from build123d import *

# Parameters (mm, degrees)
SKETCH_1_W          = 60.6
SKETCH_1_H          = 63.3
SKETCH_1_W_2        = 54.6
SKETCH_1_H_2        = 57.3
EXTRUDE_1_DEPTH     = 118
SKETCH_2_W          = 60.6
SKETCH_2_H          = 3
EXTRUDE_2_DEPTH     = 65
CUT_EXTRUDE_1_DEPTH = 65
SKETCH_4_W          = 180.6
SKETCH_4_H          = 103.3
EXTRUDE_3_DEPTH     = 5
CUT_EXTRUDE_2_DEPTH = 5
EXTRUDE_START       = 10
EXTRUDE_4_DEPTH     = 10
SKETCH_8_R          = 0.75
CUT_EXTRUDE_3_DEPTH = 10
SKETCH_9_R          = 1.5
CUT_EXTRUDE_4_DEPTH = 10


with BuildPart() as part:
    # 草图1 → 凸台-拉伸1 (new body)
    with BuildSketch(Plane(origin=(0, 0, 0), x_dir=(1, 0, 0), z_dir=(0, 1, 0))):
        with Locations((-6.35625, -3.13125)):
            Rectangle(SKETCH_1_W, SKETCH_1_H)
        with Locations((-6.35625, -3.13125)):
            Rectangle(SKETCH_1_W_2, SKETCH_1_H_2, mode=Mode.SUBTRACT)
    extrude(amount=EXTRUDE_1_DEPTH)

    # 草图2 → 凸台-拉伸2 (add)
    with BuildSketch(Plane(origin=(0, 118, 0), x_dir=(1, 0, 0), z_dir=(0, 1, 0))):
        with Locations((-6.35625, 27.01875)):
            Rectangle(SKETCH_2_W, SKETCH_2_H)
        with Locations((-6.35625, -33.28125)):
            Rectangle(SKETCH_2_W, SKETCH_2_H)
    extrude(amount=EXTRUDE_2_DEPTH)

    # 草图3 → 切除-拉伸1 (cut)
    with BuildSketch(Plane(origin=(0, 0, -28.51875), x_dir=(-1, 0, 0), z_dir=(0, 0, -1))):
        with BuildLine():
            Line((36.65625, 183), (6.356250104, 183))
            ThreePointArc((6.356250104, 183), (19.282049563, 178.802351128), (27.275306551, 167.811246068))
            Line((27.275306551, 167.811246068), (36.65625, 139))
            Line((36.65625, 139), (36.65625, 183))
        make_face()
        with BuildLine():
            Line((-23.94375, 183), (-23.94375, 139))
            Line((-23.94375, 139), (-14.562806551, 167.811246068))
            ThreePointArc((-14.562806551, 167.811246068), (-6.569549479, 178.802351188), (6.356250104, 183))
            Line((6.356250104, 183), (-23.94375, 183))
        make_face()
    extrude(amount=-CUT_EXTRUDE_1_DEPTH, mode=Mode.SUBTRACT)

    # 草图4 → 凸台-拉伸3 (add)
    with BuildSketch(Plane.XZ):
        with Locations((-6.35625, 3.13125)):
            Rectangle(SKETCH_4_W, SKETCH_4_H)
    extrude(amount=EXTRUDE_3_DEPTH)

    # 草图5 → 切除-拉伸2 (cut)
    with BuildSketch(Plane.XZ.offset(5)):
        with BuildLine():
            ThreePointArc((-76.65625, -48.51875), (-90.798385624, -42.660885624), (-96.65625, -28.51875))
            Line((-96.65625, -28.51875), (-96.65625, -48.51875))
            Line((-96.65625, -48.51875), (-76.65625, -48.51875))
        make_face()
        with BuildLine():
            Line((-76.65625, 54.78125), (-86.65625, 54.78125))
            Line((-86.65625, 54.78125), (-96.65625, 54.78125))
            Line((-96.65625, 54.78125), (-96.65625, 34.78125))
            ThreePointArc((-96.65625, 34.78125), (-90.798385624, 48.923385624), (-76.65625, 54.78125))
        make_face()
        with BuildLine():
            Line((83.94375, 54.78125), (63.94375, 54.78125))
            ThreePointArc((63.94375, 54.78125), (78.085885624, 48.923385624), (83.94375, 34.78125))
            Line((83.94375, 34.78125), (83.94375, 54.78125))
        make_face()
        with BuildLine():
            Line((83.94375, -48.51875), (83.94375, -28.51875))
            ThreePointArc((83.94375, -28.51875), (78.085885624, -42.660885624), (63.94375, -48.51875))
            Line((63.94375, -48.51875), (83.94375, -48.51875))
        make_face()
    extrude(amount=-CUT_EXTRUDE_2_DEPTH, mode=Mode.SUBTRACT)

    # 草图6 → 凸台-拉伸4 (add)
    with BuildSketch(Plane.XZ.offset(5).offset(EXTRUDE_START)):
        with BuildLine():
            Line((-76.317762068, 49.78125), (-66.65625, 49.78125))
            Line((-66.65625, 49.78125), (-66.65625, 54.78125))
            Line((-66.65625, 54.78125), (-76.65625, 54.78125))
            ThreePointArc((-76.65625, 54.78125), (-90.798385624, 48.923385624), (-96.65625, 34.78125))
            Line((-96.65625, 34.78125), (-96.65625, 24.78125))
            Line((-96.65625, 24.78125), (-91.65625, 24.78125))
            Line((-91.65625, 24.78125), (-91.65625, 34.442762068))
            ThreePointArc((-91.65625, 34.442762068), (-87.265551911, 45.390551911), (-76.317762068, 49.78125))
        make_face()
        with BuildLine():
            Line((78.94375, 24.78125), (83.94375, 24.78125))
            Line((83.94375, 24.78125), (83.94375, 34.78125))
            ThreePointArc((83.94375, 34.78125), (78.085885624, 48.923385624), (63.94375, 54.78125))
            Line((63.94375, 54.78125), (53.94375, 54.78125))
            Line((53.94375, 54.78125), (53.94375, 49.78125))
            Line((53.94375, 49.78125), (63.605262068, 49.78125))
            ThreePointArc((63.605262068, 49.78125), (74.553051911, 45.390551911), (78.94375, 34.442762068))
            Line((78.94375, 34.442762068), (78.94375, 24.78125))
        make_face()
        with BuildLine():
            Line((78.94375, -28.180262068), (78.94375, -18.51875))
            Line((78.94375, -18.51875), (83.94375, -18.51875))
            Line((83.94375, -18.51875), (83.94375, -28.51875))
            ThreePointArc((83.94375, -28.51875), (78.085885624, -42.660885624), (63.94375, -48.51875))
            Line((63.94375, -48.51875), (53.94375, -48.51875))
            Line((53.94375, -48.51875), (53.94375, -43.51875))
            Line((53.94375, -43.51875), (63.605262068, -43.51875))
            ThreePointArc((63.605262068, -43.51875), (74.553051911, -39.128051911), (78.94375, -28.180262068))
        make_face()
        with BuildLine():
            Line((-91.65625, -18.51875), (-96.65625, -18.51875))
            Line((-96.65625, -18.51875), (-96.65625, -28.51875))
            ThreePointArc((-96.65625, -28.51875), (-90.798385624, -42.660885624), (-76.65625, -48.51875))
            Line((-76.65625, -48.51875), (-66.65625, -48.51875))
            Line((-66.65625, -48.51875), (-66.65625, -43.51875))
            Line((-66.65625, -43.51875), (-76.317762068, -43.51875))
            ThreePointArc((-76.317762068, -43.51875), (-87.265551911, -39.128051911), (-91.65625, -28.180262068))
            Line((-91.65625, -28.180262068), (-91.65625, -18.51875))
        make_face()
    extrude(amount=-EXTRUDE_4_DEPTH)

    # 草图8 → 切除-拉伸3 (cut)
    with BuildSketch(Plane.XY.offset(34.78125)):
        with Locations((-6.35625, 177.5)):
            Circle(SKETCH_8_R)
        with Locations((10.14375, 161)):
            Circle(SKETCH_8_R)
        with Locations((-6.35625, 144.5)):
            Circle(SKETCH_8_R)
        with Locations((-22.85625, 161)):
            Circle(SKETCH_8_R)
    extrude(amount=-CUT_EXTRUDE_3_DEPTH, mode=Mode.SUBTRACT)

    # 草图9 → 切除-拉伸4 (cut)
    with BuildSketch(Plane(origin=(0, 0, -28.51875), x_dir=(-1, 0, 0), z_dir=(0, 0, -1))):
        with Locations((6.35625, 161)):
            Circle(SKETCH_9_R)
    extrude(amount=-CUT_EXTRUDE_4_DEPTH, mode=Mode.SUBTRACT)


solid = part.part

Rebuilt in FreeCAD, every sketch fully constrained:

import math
import FreeCAD as App
import Part
import Sketcher
from FreeCAD import Vector
Q = App.Units.Quantity


def add_polygon(sketch, points):
    """Adds a closed chain of lines whose ends are joined by coincident constraints."""
    first, n = sketch.GeometryCount, len(points)
    for a, b in zip(points, points[1:] + points[:1]):
        sketch.addGeometry(Part.LineSegment(App.Vector(*a, 0), App.Vector(*b, 0)), False)
    for i in range(n):
        sketch.addConstraint(Sketcher.Constraint("Coincident", first + i, 2, first + (i + 1) % n, 1))

doc = App.newDocument("Part")
body = doc.addObject("PartDesign::Body", "Body")

# Sketch on XZ plane
sketch1 = body.newObject("Sketcher::SketchObject", "Sketch")
sketch1.AttachmentSupport = (doc.getObject("XZ_Plane"), [""])
sketch1.MapMode = "FlatFace"
add_polygon(sketch1, [(-37, -29), (-37, 35), (24, 35), (24, -29)])  # lines 0-3
add_polygon(sketch1, [(21, 32), (-34, 32), (-34, -26), (21, -26)])  # lines 4-7
sketch1.addConstraint(Sketcher.Constraint("Vertical", 0))
sketch1.addConstraint(Sketcher.Constraint("Horizontal", 1))
sketch1.addConstraint(Sketcher.Constraint("Vertical", 2))
sketch1.addConstraint(Sketcher.Constraint("Horizontal", 3))
sketch1.addConstraint(Sketcher.Constraint("Horizontal", 4))
sketch1.addConstraint(Sketcher.Constraint("Vertical", 5))
sketch1.addConstraint(Sketcher.Constraint("Horizontal", 6))
sketch1.addConstraint(Sketcher.Constraint("Vertical", 7))
sketch1.addConstraint(Sketcher.Constraint("DistanceX", 1, 1, 1, 2, Q("60.6 mm")))
sketch1.addConstraint(Sketcher.Constraint("DistanceX", 4, 2, 4, 1, Q("54.6 mm")))
sketch1.addConstraint(Sketcher.Constraint("DistanceY", 0, 1, 0, 2, Q("63.3 mm")))
sketch1.addConstraint(Sketcher.Constraint("DistanceY", 5, 2, 5, 1, Q("57.3 mm")))
sketch1.addConstraint(Sketcher.Constraint("DistanceX", 0, 2, 4, 2, Q("3 mm")))
sketch1.addConstraint(Sketcher.Constraint("DistanceY", 4, 2, 0, 2, Q("3 mm")))
sketch1.addConstraint(Sketcher.Constraint("DistanceX", 0, 2, -1, 1, Q("36.65625 mm")))
sketch1.addConstraint(Sketcher.Constraint("DistanceY", -1, 1, 0, 2, Q("34.78125 mm")))
pad1 = body.newObject("PartDesign::Pad", "Pad")
pad1.Profile = sketch1
pad1.Length = 118
pad1.Reversed = True

# Sketch on XZ plane
sketch2 = body.newObject("Sketcher::SketchObject", "Sketch001")
sketch2.AttachmentSupport = (doc.getObject("XZ_Plane"), [""])
sketch2.MapMode = "FlatFace"
sketch2.AttachmentOffset = App.Placement(Vector(0, 0, -118), App.Rotation())
add_polygon(sketch2, [(-36.7, -28.5), (-36.7, -25.5), (23.9, -25.5), (23.9, -28.5)])  # lines 0-3
add_polygon(sketch2, [(-36.7, 31.8), (-36.7, 34.8), (23.9, 34.8), (23.9, 31.8)])  # lines 4-7
sketch2.addConstraint(Sketcher.Constraint("Vertical", 0))
sketch2.addConstraint(Sketcher.Constraint("Horizontal", 1))
sketch2.addConstraint(Sketcher.Constraint("Vertical", 2))
sketch2.addConstraint(Sketcher.Constraint("Horizontal", 3))
sketch2.addConstraint(Sketcher.Constraint("Vertical", 4))
sketch2.addConstraint(Sketcher.Constraint("Horizontal", 5))
sketch2.addConstraint(Sketcher.Constraint("Vertical", 6))
sketch2.addConstraint(Sketcher.Constraint("Horizontal", 7))
sketch2.addConstraint(Sketcher.Constraint("Vertical", 3, 2, 4, 2))
sketch2.addConstraint(Sketcher.Constraint("Vertical", 2, 2, 5, 2))
sketch2.addConstraint(Sketcher.Constraint("Equal", 2, 4))
sketch2.addConstraint(Sketcher.Constraint("DistanceY", 0, 1, 0, 2, Q("3 mm")))
sketch2.addConstraint(Sketcher.Constraint("DistanceX", 1, 1, 1, 2, Q("60.6 mm")))
sketch2.addConstraint(Sketcher.Constraint("DistanceY", 0, 2, 4, 2, Q("60.3 mm")))
sketch2.addConstraint(Sketcher.Constraint("DistanceX", 0, 2, -1, 1, Q("36.65625 mm")))
sketch2.addConstraint(Sketcher.Constraint("DistanceY", 0, 2, -1, 1, Q("25.51875 mm")))
pad2 = body.newObject("PartDesign::Pad", "Pad001")
pad2.Profile = sketch2
pad2.Length = 65
pad2.Reversed = True

# Sketch on XY plane
sketch3 = body.newObject("Sketcher::SketchObject", "Sketch002")
sketch3.AttachmentSupport = (doc.getObject("XY_Plane"), [""])
sketch3.MapMode = "FlatFace"
sketch3.AttachmentOffset = App.Placement(Vector(0, 0, -28.51875), App.Rotation())
sketch3.addGeometry(Part.LineSegment(Vector(-37, 183, 0), Vector(-6, 183, 0)), False)
sketch3.addGeometry(Part.ArcOfCircle(Part.Circle(Vector(-6, 161, 0), Vector(0, 0, 1), 22), math.radians(90), math.radians(162)), False)
sketch3.addGeometry(Part.LineSegment(Vector(-27, 168, 0), Vector(-37, 139, 0)), False)
sketch3.addGeometry(Part.LineSegment(Vector(-37, 139, 0), Vector(-37, 183, 0)), False)
sketch3.addGeometry(Part.LineSegment(Vector(24, 183, 0), Vector(24, 139, 0)), False)
sketch3.addGeometry(Part.LineSegment(Vector(24, 139, 0), Vector(15, 168, 0)), False)
sketch3.addGeometry(Part.ArcOfCircle(Part.Circle(Vector(-6, 161, 0), Vector(0, 0, 1), 22), math.radians(18), math.radians(90)), False)
sketch3.addGeometry(Part.LineSegment(Vector(-6, 183, 0), Vector(24, 183, 0)), False)
sketch3.addConstraint(Sketcher.Constraint("Tangent", 0, 2, 1, 1))
sketch3.addConstraint(Sketcher.Constraint("Tangent", 1, 2, 2, 1))
sketch3.addConstraint(Sketcher.Constraint("Coincident", 2, 2, 3, 1))
sketch3.addConstraint(Sketcher.Constraint("Coincident", 3, 2, 0, 1))
sketch3.addConstraint(Sketcher.Constraint("Coincident", 4, 2, 5, 1))
sketch3.addConstraint(Sketcher.Constraint("Tangent", 5, 2, 6, 1))
sketch3.addConstraint(Sketcher.Constraint("Tangent", 6, 2, 7, 1))
sketch3.addConstraint(Sketcher.Constraint("Coincident", 7, 2, 4, 1))
sketch3.addConstraint(Sketcher.Constraint("Horizontal", 0))
sketch3.addConstraint(Sketcher.Constraint("Vertical", 3))
sketch3.addConstraint(Sketcher.Constraint("Vertical", 4))
sketch3.addConstraint(Sketcher.Constraint("Horizontal", 7))
sketch3.addConstraint(Sketcher.Constraint("Coincident", 6, 3, 1, 3))
sketch3.addConstraint(Sketcher.Constraint("Equal", 1, 6))
sketch3.addConstraint(Sketcher.Constraint("Horizontal", 2, 2, 4, 2))
sketch3.addConstraint(Sketcher.Constraint("Horizontal", 1, 2, 5, 2))
sketch3.addConstraint(Sketcher.Constraint("Radius", 1, Q("22 mm")))
sketch3.addConstraint(Sketcher.Constraint("DistanceY", 3, 1, 3, 2, Q("44 mm")))
sketch3.addConstraint(Sketcher.Constraint("DistanceX", 0, 1, 0, 2, Q("30.3 mm")))
sketch3.addConstraint(Sketcher.Constraint("DistanceY", -1, 1, 1, 3, Q("161 mm")))
sketch3.addConstraint(Sketcher.Constraint("DistanceX", 1, 3, -1, 1, Q("6.35625 mm")))
pocket1 = body.newObject("PartDesign::Pocket", "Pocket")
pocket1.Profile = sketch3
pocket1.Length = 65
pocket1.Reversed = True

# Sketch on XZ plane
sketch4 = body.newObject("Sketcher::SketchObject", "Sketch003")
sketch4.AttachmentSupport = (doc.getObject("XZ_Plane"), [""])
sketch4.MapMode = "FlatFace"
add_polygon(sketch4, [(-97, 55), (-97, -49), (84, -49), (84, 55)])  # lines 0-3
sketch4.addConstraint(Sketcher.Constraint("Vertical", 0))
sketch4.addConstraint(Sketcher.Constraint("Horizontal", 1))
sketch4.addConstraint(Sketcher.Constraint("Vertical", 2))
sketch4.addConstraint(Sketcher.Constraint("Horizontal", 3))
sketch4.addConstraint(Sketcher.Constraint("DistanceX", 1, 1, 1, 2, Q("180.6 mm")))
sketch4.addConstraint(Sketcher.Constraint("DistanceY", 0, 2, 0, 1, Q("103.3 mm")))
sketch4.addConstraint(Sketcher.Constraint("DistanceX", 0, 2, -1, 1, Q("96.65625 mm")))
sketch4.addConstraint(Sketcher.Constraint("DistanceY", 0, 2, -1, 1, Q("48.51875 mm")))
pad3 = body.newObject("PartDesign::Pad", "Pad002")
pad3.Profile = sketch4
pad3.Length = 5

# Sketch on XZ plane
sketch5 = body.newObject("Sketcher::SketchObject", "Sketch004")
sketch5.AttachmentSupport = (doc.getObject("XZ_Plane"), [""])
sketch5.MapMode = "FlatFace"
sketch5.AttachmentOffset = App.Placement(Vector(0, 0, 5), App.Rotation())
sketch5.addGeometry(Part.ArcOfCircle(Part.Circle(Vector(-77, -29, 0), Vector(0, 0, 1), 20), math.radians(180), math.radians(270)), False)
sketch5.addGeometry(Part.LineSegment(Vector(-97, -29, 0), Vector(-97, -49, 0)), False)
sketch5.addGeometry(Part.LineSegment(Vector(-97, -49, 0), Vector(-77, -49, 0)), False)
sketch5.addGeometry(Part.LineSegment(Vector(-77, 55, 0), Vector(-97, 55, 0)), False)
sketch5.addGeometry(Part.LineSegment(Vector(-97, 55, 0), Vector(-97, 35, 0)), False)
sketch5.addGeometry(Part.ArcOfCircle(Part.Circle(Vector(-77, 35, 0), Vector(0, 0, 1), 20), math.radians(90), math.radians(180)), False)
sketch5.addGeometry(Part.LineSegment(Vector(84, 55, 0), Vector(64, 55, 0)), False)
sketch5.addGeometry(Part.ArcOfCircle(Part.Circle(Vector(64, 35, 0), Vector(0, 0, 1), 20), math.radians(0), math.radians(90)), False)
sketch5.addGeometry(Part.LineSegment(Vector(84, 35, 0), Vector(84, 55, 0)), False)
sketch5.addGeometry(Part.LineSegment(Vector(84, -49, 0), Vector(84, -29, 0)), False)
sketch5.addGeometry(Part.ArcOfCircle(Part.Circle(Vector(64, -29, 0), Vector(0, 0, 1), 20), math.radians(-90), math.radians(0)), False)
sketch5.addGeometry(Part.LineSegment(Vector(64, -49, 0), Vector(84, -49, 0)), False)
sketch5.addConstraint(Sketcher.Constraint("Tangent", 0, 1, 1, 1))
sketch5.addConstraint(Sketcher.Constraint("Coincident", 1, 2, 2, 1))
sketch5.addConstraint(Sketcher.Constraint("Tangent", 2, 2, 0, 2))
sketch5.addConstraint(Sketcher.Constraint("Coincident", 3, 2, 4, 1))
sketch5.addConstraint(Sketcher.Constraint("Tangent", 4, 2, 5, 2))
sketch5.addConstraint(Sketcher.Constraint("Tangent", 5, 1, 3, 1))
sketch5.addConstraint(Sketcher.Constraint("Tangent", 6, 2, 7, 2))
sketch5.addConstraint(Sketcher.Constraint("Tangent", 7, 1, 8, 1))
sketch5.addConstraint(Sketcher.Constraint("Coincident", 8, 2, 6, 1))
sketch5.addConstraint(Sketcher.Constraint("Tangent", 9, 2, 10, 2))
sketch5.addConstraint(Sketcher.Constraint("Tangent", 10, 1, 11, 1))
sketch5.addConstraint(Sketcher.Constraint("Coincident", 11, 2, 9, 1))
sketch5.addConstraint(Sketcher.Constraint("Vertical", 1))
sketch5.addConstraint(Sketcher.Constraint("Horizontal", 2))
sketch5.addConstraint(Sketcher.Constraint("Horizontal", 3))
sketch5.addConstraint(Sketcher.Constraint("Vertical", 4))
sketch5.addConstraint(Sketcher.Constraint("Horizontal", 6))
sketch5.addConstraint(Sketcher.Constraint("Vertical", 8))
sketch5.addConstraint(Sketcher.Constraint("Vertical", 9))
sketch5.addConstraint(Sketcher.Constraint("Horizontal", 11))
sketch5.addConstraint(Sketcher.Constraint("Equal", 0, 5))
sketch5.addConstraint(Sketcher.Constraint("Equal", 5, 7))
sketch5.addConstraint(Sketcher.Constraint("Equal", 7, 10))
sketch5.addConstraint(Sketcher.Constraint("Horizontal", 5, 3, 7, 3))
sketch5.addConstraint(Sketcher.Constraint("Horizontal", 0, 3, 10, 3))
sketch5.addConstraint(Sketcher.Constraint("Vertical", 0, 3, 5, 3))
sketch5.addConstraint(Sketcher.Constraint("Vertical", 7, 3, 10, 3))
sketch5.addConstraint(Sketcher.Constraint("Radius", 0, Q("20 mm")))
sketch5.addConstraint(Sketcher.Constraint("DistanceY", 0, 3, 5, 3, Q("63.3 mm")))
sketch5.addConstraint(Sketcher.Constraint("DistanceX", 5, 3, 7, 3, Q("140.6 mm")))
sketch5.addConstraint(Sketcher.Constraint("DistanceX", 0, 3, -1, 1, Q("76.65625 mm")))
sketch5.addConstraint(Sketcher.Constraint("DistanceY", 0, 3, -1, 1, Q("28.51875 mm")))
pocket2 = body.newObject("PartDesign::Pocket", "Pocket001")
pocket2.Profile = sketch5
pocket2.Length = 5

# Sketch on XZ plane
sketch6 = body.newObject("Sketcher::SketchObject", "Sketch005")
sketch6.AttachmentSupport = (doc.getObject("XZ_Plane"), [""])
sketch6.MapMode = "FlatFace"
sketch6.AttachmentOffset = App.Placement(Vector(0, 0, 15), App.Rotation())
sketch6.addGeometry(Part.LineSegment(Vector(-76.317762, 49.78125, 0), Vector(-66.65625, 49.78125, 0)), False)
sketch6.addGeometry(Part.LineSegment(Vector(-66.65625, 49.78125, 0), Vector(-66.65625, 54.78125, 0)), False)
sketch6.addGeometry(Part.LineSegment(Vector(-66.65625, 54.78125, 0), Vector(-76.65625, 54.78125, 0)), False)
sketch6.addGeometry(Part.ArcOfCircle(Part.Circle(Vector(-76.65625, 34.78125, 0), Vector(0, 0, 1), 20), math.radians(90), math.radians(180)), False)
sketch6.addGeometry(Part.LineSegment(Vector(-96.65625, 34.78125, 0), Vector(-96.65625, 24.78125, 0)), False)
sketch6.addGeometry(Part.LineSegment(Vector(-96.65625, 24.78125, 0), Vector(-91.65625, 24.78125, 0)), False)
sketch6.addGeometry(Part.LineSegment(Vector(-91.65625, 24.78125, 0), Vector(-91.65625, 34.442762, 0)), False)
sketch6.addGeometry(Part.ArcOfCircle(Part.Circle(Vector(-76.65625, 34.78125, 0), Vector(0, 0, 1), 15.003819), math.radians(88.707291), math.radians(181.292709)), False)
sketch6.addGeometry(Part.LineSegment(Vector(78.94375, 24.78125, 0), Vector(83.94375, 24.78125, 0)), False)
sketch6.addGeometry(Part.LineSegment(Vector(83.94375, 24.78125, 0), Vector(83.94375, 34.78125, 0)), False)
sketch6.addGeometry(Part.ArcOfCircle(Part.Circle(Vector(63.94375, 34.78125, 0), Vector(0, 0, 1), 20), math.radians(0), math.radians(90)), False)
sketch6.addGeometry(Part.LineSegment(Vector(63.94375, 54.78125, 0), Vector(53.94375, 54.78125, 0)), False)
sketch6.addGeometry(Part.LineSegment(Vector(53.94375, 54.78125, 0), Vector(53.94375, 49.78125, 0)), False)
sketch6.addGeometry(Part.LineSegment(Vector(53.94375, 49.78125, 0), Vector(63.605262, 49.78125, 0)), False)
sketch6.addGeometry(Part.ArcOfCircle(Part.Circle(Vector(63.94375, 34.78125, 0), Vector(0, 0, 1), 15.003819), math.radians(-1.292709), math.radians(91.292709)), False)
sketch6.addGeometry(Part.LineSegment(Vector(78.94375, 34.442762, 0), Vector(78.94375, 24.78125, 0)), False)
sketch6.addGeometry(Part.LineSegment(Vector(78.94375, -18.51875, 0), Vector(78.94375, -28.180262, 0)), False)
sketch6.addGeometry(Part.ArcOfCircle(Part.Circle(Vector(63.94375, -28.51875, 0), Vector(0, 0, 1), 15.003819), math.radians(-91.292709), math.radians(1.292709)), False)
sketch6.addGeometry(Part.LineSegment(Vector(63.605262, -43.51875, 0), Vector(53.94375, -43.51875, 0)), False)
sketch6.addGeometry(Part.LineSegment(Vector(53.94375, -43.51875, 0), Vector(53.94375, -48.51875, 0)), False)
sketch6.addGeometry(Part.LineSegment(Vector(53.94375, -48.51875, 0), Vector(63.94375, -48.51875, 0)), False)
sketch6.addGeometry(Part.ArcOfCircle(Part.Circle(Vector(63.94375, -28.51875, 0), Vector(0, 0, 1), 20), math.radians(-90), math.radians(0)), False)
sketch6.addGeometry(Part.LineSegment(Vector(83.94375, -28.51875, 0), Vector(83.94375, -18.51875, 0)), False)
sketch6.addGeometry(Part.LineSegment(Vector(83.94375, -18.51875, 0), Vector(78.94375, -18.51875, 0)), False)
sketch6.addGeometry(Part.LineSegment(Vector(-91.65625, -18.51875, 0), Vector(-96.65625, -18.51875, 0)), False)
sketch6.addGeometry(Part.LineSegment(Vector(-96.65625, -18.51875, 0), Vector(-96.65625, -28.51875, 0)), False)
sketch6.addGeometry(Part.ArcOfCircle(Part.Circle(Vector(-76.65625, -28.51875, 0), Vector(0, 0, 1), 20), math.radians(180), math.radians(270)), False)
sketch6.addGeometry(Part.LineSegment(Vector(-76.65625, -48.51875, 0), Vector(-66.65625, -48.51875, 0)), False)
sketch6.addGeometry(Part.LineSegment(Vector(-66.65625, -48.51875, 0), Vector(-66.65625, -43.51875, 0)), False)
sketch6.addGeometry(Part.LineSegment(Vector(-66.65625, -43.51875, 0), Vector(-76.317762, -43.51875, 0)), False)
sketch6.addGeometry(Part.ArcOfCircle(Part.Circle(Vector(-76.65625, -28.51875, 0), Vector(0, 0, 1), 15.003819), math.radians(178.707291), math.radians(271.292709)), False)
sketch6.addGeometry(Part.LineSegment(Vector(-91.65625, -28.180262, 0), Vector(-91.65625, -18.51875, 0)), False)
sketch6.addConstraint(Sketcher.Constraint("Coincident", 0, 2, 1, 1))
sketch6.addConstraint(Sketcher.Constraint("Coincident", 1, 2, 2, 1))
sketch6.addConstraint(Sketcher.Constraint("Tangent", 2, 2, 3, 1))
sketch6.addConstraint(Sketcher.Constraint("Tangent", 3, 2, 4, 1))
sketch6.addConstraint(Sketcher.Constraint("Coincident", 4, 2, 5, 1))
sketch6.addConstraint(Sketcher.Constraint("Coincident", 5, 2, 6, 1))
sketch6.addConstraint(Sketcher.Constraint("Coincident", 6, 2, 7, 2))
sketch6.addConstraint(Sketcher.Constraint("Coincident", 7, 1, 0, 1))
sketch6.addConstraint(Sketcher.Constraint("Coincident", 8, 2, 9, 1))
sketch6.addConstraint(Sketcher.Constraint("Tangent", 9, 2, 10, 1))
sketch6.addConstraint(Sketcher.Constraint("Tangent", 10, 2, 11, 1))
sketch6.addConstraint(Sketcher.Constraint("Coincident", 11, 2, 12, 1))
sketch6.addConstraint(Sketcher.Constraint("Coincident", 12, 2, 13, 1))
sketch6.addConstraint(Sketcher.Constraint("Coincident", 13, 2, 14, 2))
sketch6.addConstraint(Sketcher.Constraint("Coincident", 14, 1, 15, 1))
sketch6.addConstraint(Sketcher.Constraint("Coincident", 15, 2, 8, 1))
sketch6.addConstraint(Sketcher.Constraint("Coincident", 16, 2, 17, 2))
sketch6.addConstraint(Sketcher.Constraint("Coincident", 17, 1, 18, 1))
sketch6.addConstraint(Sketcher.Constraint("Coincident", 18, 2, 19, 1))
sketch6.addConstraint(Sketcher.Constraint("Coincident", 19, 2, 20, 1))
sketch6.addConstraint(Sketcher.Constraint("Tangent", 20, 2, 21, 1))
sketch6.addConstraint(Sketcher.Constraint("Tangent", 21, 2, 22, 1))
sketch6.addConstraint(Sketcher.Constraint("Coincident", 22, 2, 23, 1))
sketch6.addConstraint(Sketcher.Constraint("Coincident", 23, 2, 16, 1))
sketch6.addConstraint(Sketcher.Constraint("Coincident", 24, 2, 25, 1))
sketch6.addConstraint(Sketcher.Constraint("Tangent", 25, 2, 26, 1))
sketch6.addConstraint(Sketcher.Constraint("Tangent", 26, 2, 27, 1))
sketch6.addConstraint(Sketcher.Constraint("Coincident", 27, 2, 28, 1))
sketch6.addConstraint(Sketcher.Constraint("Coincident", 28, 2, 29, 1))
sketch6.addConstraint(Sketcher.Constraint("Coincident", 29, 2, 30, 2))
sketch6.addConstraint(Sketcher.Constraint("Coincident", 30, 1, 31, 1))
sketch6.addConstraint(Sketcher.Constraint("Coincident", 31, 2, 24, 1))
sketch6.addConstraint(Sketcher.Constraint("Horizontal", 0))
sketch6.addConstraint(Sketcher.Constraint("Vertical", 1))
sketch6.addConstraint(Sketcher.Constraint("Horizontal", 2))
sketch6.addConstraint(Sketcher.Constraint("Vertical", 4))
sketch6.addConstraint(Sketcher.Constraint("Horizontal", 5))
sketch6.addConstraint(Sketcher.Constraint("Vertical", 6))
sketch6.addConstraint(Sketcher.Constraint("Horizontal", 8))
sketch6.addConstraint(Sketcher.Constraint("Vertical", 9))
sketch6.addConstraint(Sketcher.Constraint("Horizontal", 11))
sketch6.addConstraint(Sketcher.Constraint("Vertical", 12))
sketch6.addConstraint(Sketcher.Constraint("Horizontal", 13))
sketch6.addConstraint(Sketcher.Constraint("Vertical", 15))
sketch6.addConstraint(Sketcher.Constraint("Vertical", 16))
sketch6.addConstraint(Sketcher.Constraint("Horizontal", 18))
sketch6.addConstraint(Sketcher.Constraint("Vertical", 19))
sketch6.addConstraint(Sketcher.Constraint("Horizontal", 20))
sketch6.addConstraint(Sketcher.Constraint("Vertical", 22))
sketch6.addConstraint(Sketcher.Constraint("Horizontal", 23))
sketch6.addConstraint(Sketcher.Constraint("Horizontal", 24))
sketch6.addConstraint(Sketcher.Constraint("Vertical", 25))
sketch6.addConstraint(Sketcher.Constraint("Horizontal", 27))
sketch6.addConstraint(Sketcher.Constraint("Vertical", 28))
sketch6.addConstraint(Sketcher.Constraint("Horizontal", 29))
sketch6.addConstraint(Sketcher.Constraint("Vertical", 31))
sketch6.addConstraint(Sketcher.Constraint("Coincident", 7, 3, 3, 3))
sketch6.addConstraint(Sketcher.Constraint("Coincident", 14, 3, 10, 3))
sketch6.addConstraint(Sketcher.Constraint("Coincident", 21, 3, 17, 3))
sketch6.addConstraint(Sketcher.Constraint("Coincident", 30, 3, 26, 3))
sketch6.addConstraint(Sketcher.Constraint("Equal", 3, 10))
sketch6.addConstraint(Sketcher.Constraint("Equal", 7, 14))
sketch6.addConstraint(Sketcher.Constraint("Equal", 14, 17))
sketch6.addConstraint(Sketcher.Constraint("Equal", 10, 21))
sketch6.addConstraint(Sketcher.Constraint("Equal", 21, 26))
sketch6.addConstraint(Sketcher.Constraint("Equal", 17, 30))
sketch6.addConstraint(Sketcher.Constraint("Horizontal", 7, 3, 10, 3))
sketch6.addConstraint(Sketcher.Constraint("Horizontal", 21, 3, 26, 3))
sketch6.addConstraint(Sketcher.Constraint("Horizontal", 5, 2, 8, 2))
sketch6.addConstraint(Sketcher.Constraint("Horizontal", 7, 1, 12, 2))
sketch6.addConstraint(Sketcher.Constraint("Horizontal", 6, 2, 14, 1))
sketch6.addConstraint(Sketcher.Constraint("Horizontal", 23, 2, 24, 2))
sketch6.addConstraint(Sketcher.Constraint("Horizontal", 18, 2, 28, 2))
sketch6.addConstraint(Sketcher.Constraint("Horizontal", 16, 2, 30, 1))
sketch6.addConstraint(Sketcher.Constraint("Vertical", 14, 3, 17, 3))
sketch6.addConstraint(Sketcher.Constraint("Vertical", 7, 3, 26, 3))
sketch6.addConstraint(Sketcher.Constraint("Vertical", 15, 2, 16, 2))
sketch6.addConstraint(Sketcher.Constraint("Vertical", 13, 2, 17, 1))
sketch6.addConstraint(Sketcher.Constraint("Vertical", 12, 2, 18, 2))
sketch6.addConstraint(Sketcher.Constraint("Vertical", 1, 2, 27, 2))
sketch6.addConstraint(Sketcher.Constraint("Equal", 2, 11))
sketch6.addConstraint(Sketcher.Constraint("Equal", 24, 1))
sketch6.addConstraint(Sketcher.Constraint("Equal", 27, 4))
sketch6.addConstraint(Sketcher.Constraint("Equal", 15, 16))
sketch6.addConstraint(Sketcher.Constraint("Radius", 3, Q("20 mm")))
sketch6.addConstraint(Sketcher.Constraint("DistanceX", 2, 2, 2, 1, Q("10 mm")))
sketch6.addConstraint(Sketcher.Constraint("DistanceX", 5, 1, 5, 2, Q("5 mm")))
sketch6.addConstraint(Sketcher.Constraint("DistanceX", 7, 3, 10, 3, Q("140.6 mm")))
sketch6.addConstraint(Sketcher.Constraint("DistanceY", 17, 3, 14, 3, Q("63.3 mm")))
sketch6.addConstraint(Sketcher.Constraint("Radius", 7, Q("15.003819 mm")))
sketch6.addConstraint(Sketcher.Constraint("DistanceX", 3, 3, -1, 1, Q("76.65625 mm")))
sketch6.addConstraint(Sketcher.Constraint("DistanceY", -1, 1, 3, 3, Q("34.78125 mm")))
pad4 = body.newObject("PartDesign::Pad", "Pad003")
pad4.Profile = sketch6
pad4.Length = 10
pad4.Reversed = True

# Sketch on XY plane
sketch7 = body.newObject("Sketcher::SketchObject", "Sketch006")
sketch7.AttachmentSupport = (doc.getObject("XY_Plane"), [""])
sketch7.MapMode = "FlatFace"
sketch7.AttachmentOffset = App.Placement(Vector(0, 0, 34.78125), App.Rotation())
sketch7.addGeometry(Part.Circle(Vector(-6.4, 177.5, 0), Vector(0, 0, 1), 0.8), False)
sketch7.addGeometry(Part.Circle(Vector(10.1, 161, 0), Vector(0, 0, 1), 0.8), False)
sketch7.addGeometry(Part.Circle(Vector(-6.4, 144.5, 0), Vector(0, 0, 1), 0.8), False)
sketch7.addGeometry(Part.Circle(Vector(-22.9, 161, 0), Vector(0, 0, 1), 0.8), False)
sketch7.addConstraint(Sketcher.Constraint("Equal", 0, 1))
sketch7.addConstraint(Sketcher.Constraint("Equal", 1, 2))
sketch7.addConstraint(Sketcher.Constraint("Equal", 2, 3))
sketch7.addConstraint(Sketcher.Constraint("Horizontal", 1, 3, 3, 3))
sketch7.addConstraint(Sketcher.Constraint("Vertical", 0, 3, 2, 3))
sketch7.addConstraint(Sketcher.Constraint("Diameter", 0, Q("1.5 mm")))
sketch7.addConstraint(Sketcher.Constraint("DistanceY", -1, 1, 1, 3, Q("161 mm")))
sketch7.addConstraint(Sketcher.Constraint("DistanceY", 2, 3, 0, 3, Q("33 mm")))
sketch7.addConstraint(Sketcher.Constraint("DistanceX", 3, 3, 1, 3, Q("33 mm")))
sketch7.addConstraint(Sketcher.Constraint("DistanceY", -1, 1, 0, 3, Q("177.5 mm")))
sketch7.addConstraint(Sketcher.Constraint("DistanceX", 0, 3, 1, 3, Q("16.5 mm")))
sketch7.addConstraint(Sketcher.Constraint("DistanceX", 0, 3, -1, 1, Q("6.35625 mm")))
pocket3 = body.newObject("PartDesign::Pocket", "Pocket002")
pocket3.Profile = sketch7
pocket3.Length = 10

# Sketch on XY plane
sketch8 = body.newObject("Sketcher::SketchObject", "Sketch007")
sketch8.AttachmentSupport = (doc.getObject("XY_Plane"), [""])
sketch8.MapMode = "FlatFace"
sketch8.AttachmentOffset = App.Placement(Vector(0, 0, -28.51875), App.Rotation())
sketch8.addGeometry(Part.Circle(Vector(-6.4, 161, 0), Vector(0, 0, 1), 1.5), False)
sketch8.addConstraint(Sketcher.Constraint("Diameter", 0, Q("3 mm")))
sketch8.addConstraint(Sketcher.Constraint("DistanceY", -1, 1, 0, 3, Q("161 mm")))
sketch8.addConstraint(Sketcher.Constraint("DistanceX", 0, 3, -1, 1, Q("6.35625 mm")))
pocket4 = body.newObject("PartDesign::Pocket", "Pocket003")
pocket4.Profile = sketch8
pocket4.Length = 10
pocket4.Reversed = True

doc.recompute()
